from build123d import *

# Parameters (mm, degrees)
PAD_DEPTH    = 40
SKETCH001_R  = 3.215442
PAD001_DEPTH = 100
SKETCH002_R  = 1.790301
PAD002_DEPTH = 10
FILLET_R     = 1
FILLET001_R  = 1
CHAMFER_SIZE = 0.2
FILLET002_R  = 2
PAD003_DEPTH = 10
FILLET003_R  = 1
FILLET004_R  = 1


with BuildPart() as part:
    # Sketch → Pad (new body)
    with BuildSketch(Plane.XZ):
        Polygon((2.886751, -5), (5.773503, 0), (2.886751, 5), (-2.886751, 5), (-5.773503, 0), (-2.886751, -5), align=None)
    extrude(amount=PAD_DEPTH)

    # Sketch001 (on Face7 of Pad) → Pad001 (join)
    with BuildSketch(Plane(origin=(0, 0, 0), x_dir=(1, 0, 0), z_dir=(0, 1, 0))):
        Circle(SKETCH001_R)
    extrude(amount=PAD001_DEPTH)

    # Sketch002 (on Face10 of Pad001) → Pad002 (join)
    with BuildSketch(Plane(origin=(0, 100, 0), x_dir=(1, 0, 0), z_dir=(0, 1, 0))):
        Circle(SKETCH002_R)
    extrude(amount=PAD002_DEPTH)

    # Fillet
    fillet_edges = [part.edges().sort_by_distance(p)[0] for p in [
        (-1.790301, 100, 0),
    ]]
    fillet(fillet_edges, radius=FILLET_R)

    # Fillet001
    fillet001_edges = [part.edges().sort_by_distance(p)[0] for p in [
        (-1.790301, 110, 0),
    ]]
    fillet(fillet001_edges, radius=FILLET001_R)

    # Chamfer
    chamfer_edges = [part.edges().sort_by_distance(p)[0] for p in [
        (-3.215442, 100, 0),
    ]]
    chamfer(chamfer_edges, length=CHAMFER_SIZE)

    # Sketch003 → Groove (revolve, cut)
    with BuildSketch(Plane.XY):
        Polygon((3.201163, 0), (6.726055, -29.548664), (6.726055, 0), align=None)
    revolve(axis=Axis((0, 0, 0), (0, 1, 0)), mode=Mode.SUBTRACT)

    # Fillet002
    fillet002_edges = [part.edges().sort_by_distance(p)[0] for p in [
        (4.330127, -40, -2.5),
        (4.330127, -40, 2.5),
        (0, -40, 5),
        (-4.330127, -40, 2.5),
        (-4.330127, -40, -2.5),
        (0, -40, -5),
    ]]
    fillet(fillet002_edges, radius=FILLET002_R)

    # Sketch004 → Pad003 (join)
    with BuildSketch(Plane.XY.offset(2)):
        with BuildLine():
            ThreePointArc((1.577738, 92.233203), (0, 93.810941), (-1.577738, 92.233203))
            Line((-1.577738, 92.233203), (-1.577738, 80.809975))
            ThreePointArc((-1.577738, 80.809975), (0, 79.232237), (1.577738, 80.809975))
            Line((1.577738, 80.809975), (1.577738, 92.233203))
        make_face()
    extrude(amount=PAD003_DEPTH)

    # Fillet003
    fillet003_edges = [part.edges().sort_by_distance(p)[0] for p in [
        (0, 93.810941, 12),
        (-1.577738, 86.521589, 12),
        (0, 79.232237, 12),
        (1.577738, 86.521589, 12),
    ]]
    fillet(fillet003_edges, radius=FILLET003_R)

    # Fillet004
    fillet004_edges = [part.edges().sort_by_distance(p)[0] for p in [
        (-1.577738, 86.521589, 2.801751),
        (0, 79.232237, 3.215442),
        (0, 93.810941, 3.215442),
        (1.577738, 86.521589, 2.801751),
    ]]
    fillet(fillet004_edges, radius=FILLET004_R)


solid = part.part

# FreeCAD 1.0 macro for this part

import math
import FreeCAD as App
import Part
import Sketcher

V = App.Vector
Q = App.Units.Quantity


def edges_at(feature, points):
    """Names of the edges that pass closest to the given points."""
    edges = feature.Shape.Edges
    near = lambda p: min(range(len(edges)), key=lambda i: edges[i].distToShape(Part.Vertex(*p))[0])
    return sorted({f"Edge{near(p) + 1}" for p in points})


def add_polygon(sketch, points):
    """Adds a closed chain of lines whose ends are joined by coincident constraints."""
    first, n = sketch.GeometryCount, len(points)
    for a, b in zip(points, points[1:] + points[:1]):
        sketch.addGeometry(Part.LineSegment(App.Vector(*a, 0), App.Vector(*b, 0)), False)
    for i in range(n):
        sketch.addConstraint(Sketcher.Constraint("Coincident", first + i, 2, first + (i + 1) % n, 1))

doc = App.newDocument("Part")
body = doc.addObject("PartDesign::Body", "Body")

# Sketch on XZ plane
sketch1 = body.newObject("Sketcher::SketchObject", "Sketch")
sketch1.AttachmentSupport = (doc.getObject("XZ_Plane"), [""])
sketch1.MapMode = "FlatFace"
add_polygon(sketch1, [(3, -5), (6, 0), (3, 5), (-3, 5), (-6, 0), (-3, -5)])  # lines 0-5
sketch1.addConstraint([
    Sketcher.Constraint("Horizontal", 2),
    Sketcher.Constraint("Horizontal", 5),
    Sketcher.Constraint("Symmetric", 0, 2, 3, 2, -1, 1),
    Sketcher.Constraint("Symmetric", 1, 2, 4, 2, -1, 1),
    Sketcher.Constraint("PointOnObject", 0, 2, -1),
    Sketcher.Constraint("Parallel", 0, 3),
    Sketcher.Constraint("Vertical", 2, 2, 4, 2),
    Sketcher.Constraint("Angle", 0, Q("59.999994 deg")),
    Sketcher.Constraint("DistanceY", -1, 1, 1, 2, 5.0),
    Sketcher.Constraint("DistanceX", 2, 2, 2, 1, 5.773502),
])
pad1 = body.newObject("PartDesign::Pad", "Pad")
pad1.Profile = sketch1
pad1.Length = 40

# Sketch on XZ plane
sketch2 = body.newObject("Sketcher::SketchObject", "Sketch001")
sketch2.AttachmentSupport = (doc.getObject("XZ_Plane"), [""])
sketch2.MapMode = "FlatFace"
sketch2.addGeometry(Part.Circle(V(0, 0, 0), V(0, 0, 1), 3.2), False)
sketch2.addConstraint([
    Sketcher.Constraint("Coincident", 0, 3, -1, 1),
    Sketcher.Constraint("Diameter", 0, 6.430884),
])
pad2 = body.newObject("PartDesign::Pad", "Pad001")
pad2.Profile = sketch2
pad2.Length = 100
pad2.Reversed = True

# Sketch on XZ plane
sketch3 = body.newObject("Sketcher::SketchObject", "Sketch002")
sketch3.AttachmentSupport = (doc.getObject("XZ_Plane"), [""])
sketch3.MapMode = "FlatFace"
sketch3.AttachmentOffset = App.Placement(V(0, 0, -100), App.Rotation())
sketch3.addGeometry(Part.Circle(V(0, 0, 0), V(0, 0, 1), 1.8), False)
sketch3.addConstraint([
    Sketcher.Constraint("Coincident", 0, 3, -1, 1),
    Sketcher.Constraint("Diameter", 0, 3.580602),
])
pad3 = body.newObject("PartDesign::Pad", "Pad002")
pad3.Profile = sketch3
pad3.Length = 10
pad3.Reversed = True
doc.recompute()

fillet = body.newObject("PartDesign::Fillet", "Fillet")
fillet.Base = (pad3, edges_at(pad3, [(-1.79, 100, 0)]))
fillet.Radius = 1
doc.recompute()

fillet2 = body.newObject("PartDesign::Fillet", "Fillet001")
fillet2.Base = (fillet, edges_at(fillet, [(-1.79, 110, 0)]))
fillet2.Radius = 1
doc.recompute()

chamfer = body.newObject("PartDesign::Chamfer", "Chamfer")
chamfer.Base = (fillet2, edges_at(fillet2, [(-3.215, 100, 0)]))
chamfer.Size = 0.2

# Sketch on XY plane
sketch4 = body.newObject("Sketcher::SketchObject", "Sketch003")
sketch4.AttachmentSupport = (doc.getObject("XY_Plane"), [""])
sketch4.MapMode = "FlatFace"
add_polygon(sketch4, [(3.2, 0), (6.7, -29.5), (6.7, 0)])  # lines 0-2
sketch4.addConstraint([
    Sketcher.Constraint("Vertical", 1),
    Sketcher.Constraint("Horizontal", 2),
    Sketcher.Constraint("PointOnObject", 1, 2, -1),
    Sketcher.Constraint("DistanceX", 2, 2, 2, 1, 3.524892),
    Sketcher.Constraint("DistanceY", 1, 1, 1, 2, 29.548664),
    Sketcher.Constraint("DistanceX", -1, 1, 0, 2, 6.726055),
])
groove = body.newObject("PartDesign::Groove", "Groove")
groove.Profile = sketch4
groove.ReferenceAxis = (sketch4, ["V_Axis"])
groove.Angle = 360
doc.recompute()

fillet3 = body.newObject("PartDesign::Fillet", "Fillet002")
fillet3.Base = (groove, edges_at(groove, [
    (4.33, -40, -2.5),
    (4.33, -40, 2.5),
    (0, -40, 5),
    (-4.33, -40, 2.5),
    (-4.33, -40, -2.5),
    (0, -40, -5),
]))
fillet3.Radius = 2

# Sketch on XY plane
sketch5 = body.newObject("Sketcher::SketchObject", "Sketch004")
sketch5.AttachmentSupport = (doc.getObject("XY_Plane"), [""])
sketch5.MapMode = "FlatFace"
sketch5.AttachmentOffset = App.Placement(V(0, 0, 2), App.Rotation())
sketch5.addGeometry([
    Part.ArcOfCircle(Part.Circle(V(0, 92.2, 0), V(0, 0, 1), 1.6), math.radians(0), math.radians(180)),
    Part.LineSegment(V(-1.6, 92.2, 0), V(-1.6, 80.8, 0)),
    Part.ArcOfCircle(Part.Circle(V(0, 80.8, 0), V(0, 0, 1), 1.6), math.radians(180), math.radians(360)),
    Part.LineSegment(V(1.6, 80.8, 0), V(1.6, 92.2, 0)),
], False)
sketch5.addConstraint([
    Sketcher.Constraint("Tangent", 0, 2, 1, 1),
    Sketcher.Constraint("Tangent", 1, 2, 2, 1),
    Sketcher.Constraint("Tangent", 2, 2, 3, 1),
    Sketcher.Constraint("Tangent", 3, 2, 0, 1),
    Sketcher.Constraint("Vertical", 1),
    Sketcher.Constraint("Vertical", 3),
    Sketcher.Constraint("PointOnObject", 0, 3, -2),
    Sketcher.Constraint("Radius", 0, 1.577738),
    Sketcher.Constraint("DistanceY", 1, 2, 1, 1, 11.423228),
    Sketcher.Constraint("DistanceY", -1, 1, 0, 3, 92.233203),
])
pad4 = body.newObject("PartDesign::Pad", "Pad003")
pad4.Profile = sketch5
pad4.Length = 10
doc.recompute()

fillet4 = body.newObject("PartDesign::Fillet", "Fillet003")
fillet4.Base = (pad4, edges_at(pad4, [
    (0, 93.811, 12),
    (-1.578, 86.522, 12),
    (0, 79.232, 12),
    (1.578, 86.522, 12),
]))
fillet4.Radius = 1
doc.recompute()

fillet5 = body.newObject("PartDesign::Fillet", "Fillet004")
fillet5.Base = (fillet4, edges_at(fillet4, [
    (-1.578, 86.522, 2.802),
    (0, 79.232, 3.215),
    (0, 93.811, 3.215),
    (1.578, 86.522, 2.802),
]))
fillet5.Radius = 1

doc.recompute()
